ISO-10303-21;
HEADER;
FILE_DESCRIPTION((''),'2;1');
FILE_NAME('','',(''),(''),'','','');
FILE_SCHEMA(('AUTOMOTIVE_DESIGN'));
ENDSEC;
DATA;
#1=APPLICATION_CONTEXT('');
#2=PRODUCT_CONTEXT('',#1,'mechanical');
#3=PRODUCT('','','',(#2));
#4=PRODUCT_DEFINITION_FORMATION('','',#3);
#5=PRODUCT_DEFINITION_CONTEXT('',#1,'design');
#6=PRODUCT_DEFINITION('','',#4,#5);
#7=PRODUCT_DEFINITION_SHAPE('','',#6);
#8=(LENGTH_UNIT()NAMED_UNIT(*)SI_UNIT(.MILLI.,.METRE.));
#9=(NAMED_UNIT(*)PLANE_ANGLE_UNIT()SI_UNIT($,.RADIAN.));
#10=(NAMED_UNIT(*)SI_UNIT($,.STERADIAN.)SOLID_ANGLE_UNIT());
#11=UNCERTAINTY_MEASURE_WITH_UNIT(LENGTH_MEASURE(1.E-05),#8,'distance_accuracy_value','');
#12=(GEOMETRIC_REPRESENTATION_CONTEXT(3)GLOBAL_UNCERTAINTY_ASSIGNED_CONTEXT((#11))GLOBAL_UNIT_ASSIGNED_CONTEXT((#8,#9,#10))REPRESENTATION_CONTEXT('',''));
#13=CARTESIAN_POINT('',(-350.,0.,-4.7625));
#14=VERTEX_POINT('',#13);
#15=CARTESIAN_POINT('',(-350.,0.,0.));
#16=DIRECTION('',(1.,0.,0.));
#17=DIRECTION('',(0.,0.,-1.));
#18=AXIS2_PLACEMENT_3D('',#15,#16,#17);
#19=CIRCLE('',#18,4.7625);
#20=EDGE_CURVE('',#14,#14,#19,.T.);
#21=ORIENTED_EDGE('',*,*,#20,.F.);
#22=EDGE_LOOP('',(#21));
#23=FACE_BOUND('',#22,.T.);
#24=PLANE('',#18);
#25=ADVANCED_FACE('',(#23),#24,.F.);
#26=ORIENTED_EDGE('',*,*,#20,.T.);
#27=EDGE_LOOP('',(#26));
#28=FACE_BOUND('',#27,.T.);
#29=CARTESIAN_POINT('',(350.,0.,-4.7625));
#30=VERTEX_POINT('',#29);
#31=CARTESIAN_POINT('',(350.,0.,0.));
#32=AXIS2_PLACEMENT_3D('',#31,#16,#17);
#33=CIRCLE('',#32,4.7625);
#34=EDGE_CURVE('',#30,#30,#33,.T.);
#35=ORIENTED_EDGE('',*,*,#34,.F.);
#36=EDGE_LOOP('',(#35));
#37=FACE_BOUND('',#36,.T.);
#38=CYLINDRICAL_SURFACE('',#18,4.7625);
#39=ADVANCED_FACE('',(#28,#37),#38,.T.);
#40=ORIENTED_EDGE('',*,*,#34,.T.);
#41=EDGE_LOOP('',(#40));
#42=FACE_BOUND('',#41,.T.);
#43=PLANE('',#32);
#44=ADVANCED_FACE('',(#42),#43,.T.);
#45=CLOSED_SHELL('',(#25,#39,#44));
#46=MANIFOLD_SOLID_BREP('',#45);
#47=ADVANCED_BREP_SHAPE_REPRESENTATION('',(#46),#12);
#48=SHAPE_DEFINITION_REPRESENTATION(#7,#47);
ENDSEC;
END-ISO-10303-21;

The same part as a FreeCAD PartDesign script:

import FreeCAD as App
import Part
import Sketcher

V = App.Vector
Q = App.Units.Quantity

doc = App.newDocument("Part")
body = doc.addObject("PartDesign::Body", "Body")

# Sketch on YZ plane
sketch1 = body.newObject("Sketcher::SketchObject", "Sketch")
sketch1.AttachmentSupport = (doc.getObject("YZ_Plane"), [""])
sketch1.MapMode = "FlatFace"
sketch1.AttachmentOffset = App.Placement(V(0, 0, -350), App.Rotation())
sketch1.addGeometry(Part.Circle(V(0, 0, 0), V(0, 0, 1), 4.8), False)
sketch1.addConstraint(Sketcher.Constraint("Coincident", 0, 3, -1, 1))
sketch1.addConstraint(Sketcher.Constraint("Diameter", 0, Q("9.525 mm")))

# Sketch on XY plane
sketch2 = body.newObject("Sketcher::SketchObject", "Sketch001")
sketch2.AttachmentSupport = (doc.getObject("XY_Plane"), [""])
sketch2.MapMode = "FlatFace"
sketch2.addGeometry(Part.LineSegment(V(-350, 0, 0), V(350, 0, 0)), False)
sketch2.addConstraint(Sketcher.Constraint("Horizontal", 0))
sketch2.addConstraint(Sketcher.Constraint("Symmetric", 0, 1, 0, 2, -1, 1))
sketch2.addConstraint(Sketcher.Constraint("DistanceX", 0, 1, 0, 2, Q("700 mm")))
doc.recompute()

additivepipe = body.newObject("PartDesign::AdditivePipe", "AdditivePipe")
additivepipe.Profile = sketch1
additivepipe.Spine = (sketch2, ["Edge1"])

doc.recompute()
